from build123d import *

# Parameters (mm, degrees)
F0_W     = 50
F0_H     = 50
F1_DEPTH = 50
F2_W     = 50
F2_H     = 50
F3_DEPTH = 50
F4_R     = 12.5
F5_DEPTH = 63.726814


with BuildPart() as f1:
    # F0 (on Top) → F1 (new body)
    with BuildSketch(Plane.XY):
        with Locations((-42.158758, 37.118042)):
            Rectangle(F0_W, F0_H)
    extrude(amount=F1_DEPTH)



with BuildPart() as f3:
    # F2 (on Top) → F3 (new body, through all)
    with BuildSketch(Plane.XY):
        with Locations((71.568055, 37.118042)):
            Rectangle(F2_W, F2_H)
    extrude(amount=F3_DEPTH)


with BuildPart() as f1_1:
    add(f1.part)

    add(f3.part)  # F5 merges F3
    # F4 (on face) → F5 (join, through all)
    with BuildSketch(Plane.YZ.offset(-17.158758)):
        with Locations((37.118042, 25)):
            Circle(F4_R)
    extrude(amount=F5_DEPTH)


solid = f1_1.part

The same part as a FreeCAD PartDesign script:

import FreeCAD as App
import Part
import Sketcher

V = App.Vector
Q = App.Units.Quantity

doc = App.newDocument("Part")
body = doc.addObject("PartDesign::Body", "Body")

sketch1 = doc.addObject("Sketcher::SketchObject", "Sketch")
body.addObject(sketch1)
sketch1.AttachmentSupport = (doc.XY_Plane, [""])
sketch1.MapMode = "FlatFace"
sketch1.addGeometry(Part.LineSegment(V(-67, 62, 0), V(-67, 12, 0)), False)
sketch1.addGeometry(Part.LineSegment(V(-67, 12, 0), V(-17, 12, 0)), False)
sketch1.addGeometry(Part.LineSegment(V(-17, 12, 0), V(-17, 62, 0)), False)
sketch1.addGeometry(Part.LineSegment(V(-17, 62, 0), V(-67, 62, 0)), False)
sketch1.addConstraint(Sketcher.Constraint("Coincident", 0, 2, 1, 1))
sketch1.addConstraint(Sketcher.Constraint("Coincident", 1, 2, 2, 1))
sketch1.addConstraint(Sketcher.Constraint("Coincident", 2, 2, 3, 1))
sketch1.addConstraint(Sketcher.Constraint("Coincident", 3, 2, 0, 1))
sketch1.addConstraint(Sketcher.Constraint("Vertical", 0))
sketch1.addConstraint(Sketcher.Constraint("Horizontal", 1))
sketch1.addConstraint(Sketcher.Constraint("Vertical", 2))
sketch1.addConstraint(Sketcher.Constraint("Horizontal", 3))
sketch1.addConstraint(Sketcher.Constraint("Equal", 3, 0))
sketch1.addConstraint(Sketcher.Constraint("DistanceX", 1, 1, 1, 2, Q("50 mm")))
sketch1.addConstraint(Sketcher.Constraint("DistanceX", 0, 2, -1, 1, Q("67.158758 mm")))
sketch1.addConstraint(Sketcher.Constraint("DistanceY", -1, 1, 0, 2, Q("12.118042 mm")))
pad1 = doc.addObject("PartDesign::Pad", "Pad")
body.addObject(pad1)
pad1.Profile = sketch1
pad1.Length = 50
body2 = doc.addObject("PartDesign::Body", "Body001")

sketch2 = doc.addObject("Sketcher::SketchObject", "Sketch001")
body2.addObject(sketch2)
sketch2.AttachmentSupport = (doc.getObject("XY_Plane001"), [""])
sketch2.MapMode = "FlatFace"
sketch2.addGeometry(Part.LineSegment(V(47, 62, 0), V(47, 12, 0)), False)
sketch2.addGeometry(Part.LineSegment(V(47, 12, 0), V(97, 12, 0)), False)
sketch2.addGeometry(Part.LineSegment(V(97, 12, 0), V(97, 62, 0)), False)
sketch2.addGeometry(Part.LineSegment(V(97, 62, 0), V(47, 62, 0)), False)
sketch2.addConstraint(Sketcher.Constraint("Coincident", 0, 2, 1, 1))
sketch2.addConstraint(Sketcher.Constraint("Coincident", 1, 2, 2, 1))
sketch2.addConstraint(Sketcher.Constraint("Coincident", 2, 2, 3, 1))
sketch2.addConstraint(Sketcher.Constraint("Coincident", 3, 2, 0, 1))
sketch2.addConstraint(Sketcher.Constraint("Vertical", 0))
sketch2.addConstraint(Sketcher.Constraint("Horizontal", 1))
sketch2.addConstraint(Sketcher.Constraint("Vertical", 2))
sketch2.addConstraint(Sketcher.Constraint("Horizontal", 3))
sketch2.addConstraint(Sketcher.Constraint("Equal", 3, 0))
sketch2.addConstraint(Sketcher.Constraint("DistanceX", 1, 1, 1, 2, Q("50 mm")))
sketch2.addConstraint(Sketcher.Constraint("DistanceX", -1, 1, 0, 2, Q("46.568055 mm")))
sketch2.addConstraint(Sketcher.Constraint("DistanceY", -1, 1, 0, 2, Q("12.118042 mm")))
pad2 = doc.addObject("PartDesign::Pad", "Pad001")
body2.addObject(pad2)
pad2.Profile = sketch2
pad2.Length = 50
body.AllowCompound = True
doc.recompute()

boolean = doc.addObject("PartDesign::Boolean", "Boolean")
body.addObject(boolean)
boolean.Type = "Fuse"
boolean.addObjects([body2])

sketch3 = doc.addObject("Sketcher::SketchObject", "Sketch002")
body.addObject(sketch3)
sketch3.AttachmentSupport = (doc.YZ_Plane, [""])
sketch3.MapMode = "FlatFace"
sketch3.AttachmentOffset = App.Placement(V(0, 0, -17.158758), App.Rotation())
sketch3.addGeometry(Part.Circle(V(37, 25, 0), V(0, 0, 1), 12), False)
sketch3.addConstraint(Sketcher.Constraint("Diameter", 0, Q("25 mm")))
sketch3.addConstraint(Sketcher.Constraint("DistanceY", -1, 1, 0, 3, Q("25 mm")))
sketch3.addConstraint(Sketcher.Constraint("DistanceX", -1, 1, 0, 3, Q("37.118042 mm")))
pad3 = doc.addObject("PartDesign::Pad", "Pad002")
body.addObject(pad3)
pad3.Profile = sketch3
pad3.Type = "UpToLast"

doc.recompute()
